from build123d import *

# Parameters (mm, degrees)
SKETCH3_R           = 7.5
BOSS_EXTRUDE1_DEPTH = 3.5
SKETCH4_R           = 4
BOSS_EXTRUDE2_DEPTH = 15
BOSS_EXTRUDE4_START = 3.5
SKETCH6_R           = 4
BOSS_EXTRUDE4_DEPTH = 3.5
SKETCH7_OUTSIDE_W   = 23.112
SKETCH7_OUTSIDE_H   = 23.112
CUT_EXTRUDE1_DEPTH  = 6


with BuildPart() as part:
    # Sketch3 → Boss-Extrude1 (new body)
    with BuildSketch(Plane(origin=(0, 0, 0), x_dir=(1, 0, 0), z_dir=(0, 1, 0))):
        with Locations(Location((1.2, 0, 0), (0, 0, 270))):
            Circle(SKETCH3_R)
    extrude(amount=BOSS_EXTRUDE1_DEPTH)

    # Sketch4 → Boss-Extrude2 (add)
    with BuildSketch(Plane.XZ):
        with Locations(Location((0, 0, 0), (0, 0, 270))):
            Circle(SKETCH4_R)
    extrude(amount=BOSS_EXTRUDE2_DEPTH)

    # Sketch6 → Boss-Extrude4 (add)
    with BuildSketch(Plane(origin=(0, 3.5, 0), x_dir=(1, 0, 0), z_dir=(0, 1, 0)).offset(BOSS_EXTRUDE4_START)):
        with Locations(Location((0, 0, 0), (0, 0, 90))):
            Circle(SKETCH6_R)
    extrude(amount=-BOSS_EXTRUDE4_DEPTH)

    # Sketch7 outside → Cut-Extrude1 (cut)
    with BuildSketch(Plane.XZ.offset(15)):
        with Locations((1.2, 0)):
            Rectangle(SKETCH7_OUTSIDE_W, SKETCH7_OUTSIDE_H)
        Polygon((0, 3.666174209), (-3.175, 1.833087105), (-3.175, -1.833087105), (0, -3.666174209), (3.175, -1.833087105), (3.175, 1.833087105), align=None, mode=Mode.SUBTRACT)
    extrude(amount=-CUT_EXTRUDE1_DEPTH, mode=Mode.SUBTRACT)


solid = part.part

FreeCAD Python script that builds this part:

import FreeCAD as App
import Part
import Sketcher
Q = App.Units.Quantity

doc = App.newDocument("Part")
body = doc.addObject("PartDesign::Body", "Body")

# Sketch on XZ plane
sketch1 = body.newObject("Sketcher::SketchObject", "Sketch")
sketch1.AttachmentSupport = (doc.getObject("XZ_Plane"), [""])
sketch1.MapMode = "FlatFace"
sketch1.addGeometry(Part.Circle(App.Vector(1.2, 0, 0), App.Vector(0, 0, 1), 7.5), False)
sketch1.addConstraint(Sketcher.Constraint("PointOnObject", 0, 3, -1))
sketch1.addConstraint(Sketcher.Constraint("Diameter", 0, Q("15 mm")))
sketch1.addConstraint(Sketcher.Constraint("DistanceX", -1, 1, 0, 3, Q("1.2 mm")))
pad1 = body.newObject("PartDesign::Pad", "Pad")
pad1.Profile = sketch1
pad1.Length = 3.5
pad1.Reversed = True

# Sketch on XZ plane
sketch2 = body.newObject("Sketcher::SketchObject", "Sketch001")
sketch2.AttachmentSupport = (doc.getObject("XZ_Plane"), [""])
sketch2.MapMode = "FlatFace"
sketch2.addGeometry(Part.Circle(App.Vector(0, 0, 0), App.Vector(0, 0, 1), 4), False)
sketch2.addConstraint(Sketcher.Constraint("Coincident", 0, 3, -1, 1))
sketch2.addConstraint(Sketcher.Constraint("Diameter", 0, Q("8 mm")))
pad2 = body.newObject("PartDesign::Pad", "Pad001")
pad2.Profile = sketch2
pad2.Length = 15

# Sketch on XZ plane
sketch3 = body.newObject("Sketcher::SketchObject", "Sketch002")
sketch3.AttachmentSupport = (doc.getObject("XZ_Plane"), [""])
sketch3.MapMode = "FlatFace"
sketch3.AttachmentOffset = App.Placement(App.Vector(0, 0, -7), App.Rotation())
sketch3.addGeometry(Part.Circle(App.Vector(0, 0, 0), App.Vector(0, 0, 1), 4), False)
sketch3.addConstraint(Sketcher.Constraint("Coincident", 0, 3, -1, 1))
sketch3.addConstraint(Sketcher.Constraint("Diameter", 0, Q("8 mm")))
pad3 = body.newObject("PartDesign::Pad", "Pad002")
pad3.Profile = sketch3
pad3.Length = 3.5

# Sketch on XZ plane
sketch4 = body.newObject("Sketcher::SketchObject", "Sketch003")
sketch4.AttachmentSupport = (doc.getObject("XZ_Plane"), [""])
sketch4.MapMode = "FlatFace"
sketch4.AttachmentOffset = App.Placement(App.Vector(0, 0, 15), App.Rotation())
sketch4.addGeometry(Part.LineSegment(App.Vector(-10.356, 11.556, 0), App.Vector(-10.356, -11.556, 0)), False)
sketch4.addGeometry(Part.LineSegment(App.Vector(-10.356, -11.556, 0), App.Vector(12.756, -11.556, 0)), False)
sketch4.addGeometry(Part.LineSegment(App.Vector(12.756, -11.556, 0), App.Vector(12.756, 11.556, 0)), False)
sketch4.addGeometry(Part.LineSegment(App.Vector(12.756, 11.556, 0), App.Vector(-10.356, 11.556, 0)), False)
sketch4.addGeometry(Part.LineSegment(App.Vector(-3.175, 1.833087, 0), App.Vector(0, 3.666174, 0)), False)
sketch4.addGeometry(Part.LineSegment(App.Vector(0, 3.666174, 0), App.Vector(3.175, 1.833087, 0)), False)
sketch4.addGeometry(Part.LineSegment(App.Vector(3.175, 1.833087, 0), App.Vector(3.175, -1.833087, 0)), False)
sketch4.addGeometry(Part.LineSegment(App.Vector(3.175, -1.833087, 0), App.Vector(0, -3.666174, 0)), False)
sketch4.addGeometry(Part.LineSegment(App.Vector(0, -3.666174, 0), App.Vector(-3.175, -1.833087, 0)), False)
sketch4.addGeometry(Part.LineSegment(App.Vector(-3.175, -1.833087, 0), App.Vector(-3.175, 1.833087, 0)), False)
sketch4.addConstraint(Sketcher.Constraint("Coincident", 0, 2, 1, 1))
sketch4.addConstraint(Sketcher.Constraint("Coincident", 1, 2, 2, 1))
sketch4.addConstraint(Sketcher.Constraint("Coincident", 2, 2, 3, 1))
sketch4.addConstraint(Sketcher.Constraint("Coincident", 3, 2, 0, 1))
sketch4.addConstraint(Sketcher.Constraint("Coincident", 4, 2, 5, 1))
sketch4.addConstraint(Sketcher.Constraint("Coincident", 5, 2, 6, 1))
sketch4.addConstraint(Sketcher.Constraint("Coincident", 6, 2, 7, 1))
sketch4.addConstraint(Sketcher.Constraint("Coincident", 7, 2, 8, 1))
sketch4.addConstraint(Sketcher.Constraint("Coincident", 8, 2, 9, 1))
sketch4.addConstraint(Sketcher.Constraint("Coincident", 9, 2, 4, 1))
sketch4.addConstraint(Sketcher.Constraint("Vertical", 0))
sketch4.addConstraint(Sketcher.Constraint("Horizontal", 1))
sketch4.addConstraint(Sketcher.Constraint("Vertical", 2))
sketch4.addConstraint(Sketcher.Constraint("Horizontal", 3))
sketch4.addConstraint(Sketcher.Constraint("Vertical", 6))
sketch4.addConstraint(Sketcher.Constraint("Vertical", 9))
sketch4.addConstraint(Sketcher.Constraint("Symmetric", 4, 2, 7, 2, -1, 1))
sketch4.addConstraint(Sketcher.Constraint("Symmetric", 5, 2, 8, 2, -1, 1))
sketch4.addConstraint(Sketcher.Constraint("PointOnObject", 4, 2, -2))
sketch4.addConstraint(Sketcher.Constraint("Parallel", 4, 7))
sketch4.addConstraint(Sketcher.Constraint("Horizontal", 6, 2, 8, 2))
sketch4.addConstraint(Sketcher.Constraint("Equal", 3, 0))
sketch4.addConstraint(Sketcher.Constraint("Angle", 4, Q("30 deg")))
sketch4.addConstraint(Sketcher.Constraint("DistanceX", 1, 1, 1, 2, Q("23.112 mm")))
sketch4.addConstraint(Sketcher.Constraint("DistanceX", 8, 2, 6, 2, Q("6.35 mm")))
sketch4.addConstraint(Sketcher.Constraint("DistanceX", 0, 2, -1, 1, Q("10.356 mm")))
sketch4.addConstraint(Sketcher.Constraint("DistanceY", 0, 2, -1, 1, Q("11.556 mm")))
sketch4.addConstraint(Sketcher.Constraint("DistanceY", 6, 2, 6, 1, Q("3.666174 mm")))
pocket1 = body.newObject("PartDesign::Pocket", "Pocket")
pocket1.Profile = sketch4
pocket1.Length = 6

doc.recompute()
